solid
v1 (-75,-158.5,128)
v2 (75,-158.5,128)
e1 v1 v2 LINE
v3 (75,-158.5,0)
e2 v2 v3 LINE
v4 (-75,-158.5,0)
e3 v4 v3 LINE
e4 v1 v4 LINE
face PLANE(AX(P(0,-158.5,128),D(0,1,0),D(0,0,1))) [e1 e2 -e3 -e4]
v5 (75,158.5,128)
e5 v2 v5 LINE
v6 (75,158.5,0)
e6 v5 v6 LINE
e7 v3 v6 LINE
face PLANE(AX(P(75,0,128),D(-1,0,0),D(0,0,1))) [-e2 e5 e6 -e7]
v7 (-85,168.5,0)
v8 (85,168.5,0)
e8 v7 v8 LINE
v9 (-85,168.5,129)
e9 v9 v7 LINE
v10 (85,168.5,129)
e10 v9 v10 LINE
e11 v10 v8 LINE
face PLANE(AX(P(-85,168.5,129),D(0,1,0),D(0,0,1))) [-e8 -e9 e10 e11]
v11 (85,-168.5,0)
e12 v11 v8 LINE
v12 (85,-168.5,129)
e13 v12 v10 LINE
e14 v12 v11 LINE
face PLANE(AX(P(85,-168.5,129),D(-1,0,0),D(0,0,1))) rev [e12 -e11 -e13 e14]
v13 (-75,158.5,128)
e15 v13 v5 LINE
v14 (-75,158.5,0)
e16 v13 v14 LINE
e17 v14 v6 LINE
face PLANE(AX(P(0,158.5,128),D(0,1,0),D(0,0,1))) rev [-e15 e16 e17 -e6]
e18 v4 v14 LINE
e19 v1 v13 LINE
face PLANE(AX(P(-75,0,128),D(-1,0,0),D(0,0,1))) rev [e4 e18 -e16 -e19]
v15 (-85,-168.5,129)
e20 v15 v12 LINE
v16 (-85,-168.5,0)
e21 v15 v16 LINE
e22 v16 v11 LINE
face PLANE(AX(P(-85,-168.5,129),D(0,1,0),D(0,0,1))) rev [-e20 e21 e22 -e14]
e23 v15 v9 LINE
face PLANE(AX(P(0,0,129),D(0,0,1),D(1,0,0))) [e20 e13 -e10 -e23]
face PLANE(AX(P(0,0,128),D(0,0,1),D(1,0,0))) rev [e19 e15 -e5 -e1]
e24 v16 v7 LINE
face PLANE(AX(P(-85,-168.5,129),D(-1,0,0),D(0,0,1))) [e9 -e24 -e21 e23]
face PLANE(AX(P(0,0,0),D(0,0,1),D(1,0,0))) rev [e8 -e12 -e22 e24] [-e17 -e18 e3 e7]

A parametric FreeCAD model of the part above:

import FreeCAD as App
import Part
import Sketcher

V = App.Vector


def add_polygon(sketch, points):
    """Adds a closed chain of lines whose ends are joined by coincident constraints."""
    first, n = sketch.GeometryCount, len(points)
    for a, b in zip(points, points[1:] + points[:1]):
        sketch.addGeometry(Part.LineSegment(App.Vector(*a, 0), App.Vector(*b, 0)), False)
    for i in range(n):
        sketch.addConstraint(Sketcher.Constraint("Coincident", first + i, 2, first + (i + 1) % n, 1))

doc = App.newDocument("Part")
body = doc.addObject("PartDesign::Body", "Body")

# Sketch on XY plane
sketch1 = body.newObject("Sketcher::SketchObject", "Sketch")
sketch1.AttachmentSupport = (doc.getObject("XY_Plane"), [""])
sketch1.MapMode = "FlatFace"
add_polygon(sketch1, [(-85, 168), (-85, -168), (85, -168), (85, 168)])  # lines 0-3
sketch1.addConstraint([
    Sketcher.Constraint("Vertical", 0),
    Sketcher.Constraint("Horizontal", 1),
    Sketcher.Constraint("Vertical", 2),
    Sketcher.Constraint("Horizontal", 3),
    Sketcher.Constraint("Symmetric", 0, 2, 2, 2, -1, 1),
    Sketcher.Constraint("DistanceX", 1, 1, 1, 2, 170.0),
    Sketcher.Constraint("DistanceY", 0, 2, 0, 1, 337.0),
])
pad1 = body.newObject("PartDesign::Pad", "Pad")
pad1.Profile = sketch1
pad1.Length = 129

# Sketch on XY plane
sketch2 = body.newObject("Sketcher::SketchObject", "Sketch001")
sketch2.AttachmentSupport = (doc.getObject("XY_Plane"), [""])
sketch2.MapMode = "FlatFace"
add_polygon(sketch2, [(-75, 158), (-75, -158), (75, -158), (75, 158)])  # lines 0-3
sketch2.addConstraint([
    Sketcher.Constraint("Vertical", 0),
    Sketcher.Constraint("Horizontal", 1),
    Sketcher.Constraint("Vertical", 2),
    Sketcher.Constraint("Horizontal", 3),
    Sketcher.Constraint("Symmetric", 0, 2, 2, 2, -1, 1),
    Sketcher.Constraint("DistanceX", 1, 1, 1, 2, 150.0),
    Sketcher.Constraint("DistanceY", 0, 2, 0, 1, 317.0),
])
pocket1 = body.newObject("PartDesign::Pocket", "Pocket")
pocket1.Profile = sketch2
pocket1.Length = 128
pocket1.Reversed = True

doc.recompute()
